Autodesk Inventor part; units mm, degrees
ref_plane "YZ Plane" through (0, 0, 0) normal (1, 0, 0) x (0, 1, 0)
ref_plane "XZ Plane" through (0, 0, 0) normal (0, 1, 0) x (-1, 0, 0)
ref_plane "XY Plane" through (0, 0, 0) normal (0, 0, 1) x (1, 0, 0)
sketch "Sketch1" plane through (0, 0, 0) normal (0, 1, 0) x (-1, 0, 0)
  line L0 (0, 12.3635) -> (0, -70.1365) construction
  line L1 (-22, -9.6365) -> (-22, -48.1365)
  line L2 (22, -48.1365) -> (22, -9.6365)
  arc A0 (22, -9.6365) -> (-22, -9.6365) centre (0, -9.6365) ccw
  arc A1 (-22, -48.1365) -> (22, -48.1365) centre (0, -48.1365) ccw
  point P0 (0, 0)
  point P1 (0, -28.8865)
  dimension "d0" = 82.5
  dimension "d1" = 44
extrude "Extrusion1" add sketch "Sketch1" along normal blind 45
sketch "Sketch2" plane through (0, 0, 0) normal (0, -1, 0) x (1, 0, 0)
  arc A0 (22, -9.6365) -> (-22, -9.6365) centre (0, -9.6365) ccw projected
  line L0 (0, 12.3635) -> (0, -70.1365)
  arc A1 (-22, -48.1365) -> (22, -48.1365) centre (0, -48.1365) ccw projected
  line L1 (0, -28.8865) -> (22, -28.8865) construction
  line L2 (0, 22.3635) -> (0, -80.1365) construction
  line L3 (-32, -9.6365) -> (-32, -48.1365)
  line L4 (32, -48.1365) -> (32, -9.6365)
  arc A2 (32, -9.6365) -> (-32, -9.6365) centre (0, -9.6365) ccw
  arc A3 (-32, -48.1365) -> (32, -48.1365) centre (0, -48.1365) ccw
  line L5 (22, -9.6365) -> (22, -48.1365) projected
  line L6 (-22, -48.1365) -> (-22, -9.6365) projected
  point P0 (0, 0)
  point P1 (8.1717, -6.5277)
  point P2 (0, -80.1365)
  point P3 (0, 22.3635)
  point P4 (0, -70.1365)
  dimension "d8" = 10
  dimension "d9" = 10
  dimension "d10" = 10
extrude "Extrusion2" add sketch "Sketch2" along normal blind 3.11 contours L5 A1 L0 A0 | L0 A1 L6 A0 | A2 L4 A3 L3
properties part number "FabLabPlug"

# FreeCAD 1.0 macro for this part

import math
import FreeCAD as App
import Part
import Sketcher

V = App.Vector
Q = App.Units.Quantity

doc = App.newDocument("Part")
body = doc.addObject("PartDesign::Body", "Body")

# Sketch on XZ plane
sketch1 = body.newObject("Sketcher::SketchObject", "Sketch")
sketch1.AttachmentSupport = (doc.getObject("XZ_Plane"), [""])
sketch1.MapMode = "FlatFace"
sketch1.addGeometry(Part.ArcOfCircle(Part.Circle(V(0, -10, 0), V(0, 0, 1), 22), math.radians(0), math.radians(180)), False)
sketch1.addGeometry(Part.LineSegment(V(22, -10, 0), V(22, -48, 0)), False)
sketch1.addGeometry(Part.ArcOfCircle(Part.Circle(V(0, -48, 0), V(0, 0, 1), 22), math.radians(180), math.radians(360)), False)
sketch1.addGeometry(Part.LineSegment(V(-22, -48, 0), V(-22, -10, 0)), False)
sketch1.addConstraint(Sketcher.Constraint("Tangent", 0, 1, 1, 1))
sketch1.addConstraint(Sketcher.Constraint("Tangent", 1, 2, 2, 2))
sketch1.addConstraint(Sketcher.Constraint("Tangent", 2, 1, 3, 1))
sketch1.addConstraint(Sketcher.Constraint("Tangent", 3, 2, 0, 2))
sketch1.addConstraint(Sketcher.Constraint("Vertical", 1))
sketch1.addConstraint(Sketcher.Constraint("Vertical", 3))
sketch1.addConstraint(Sketcher.Constraint("PointOnObject", 0, 3, -2))
sketch1.addConstraint(Sketcher.Constraint("Radius", 0, Q("22 mm")))
sketch1.addConstraint(Sketcher.Constraint("DistanceY", 1, 2, 1, 1, Q("38.5 mm")))
sketch1.addConstraint(Sketcher.Constraint("DistanceY", 0, 3, -1, 1, Q("9.6365 mm")))
pad1 = body.newObject("PartDesign::Pad", "Pad")
pad1.Profile = sketch1
pad1.Length = 45
pad1.Reversed = True

# Sketch on XZ plane
sketch2 = body.newObject("Sketcher::SketchObject", "Sketch001")
sketch2.AttachmentSupport = (doc.getObject("XZ_Plane"), [""])
sketch2.MapMode = "FlatFace"
sketch2.addGeometry(Part.ArcOfCircle(Part.Circle(V(0, -10, 0), V(0, 0, 1), 32), math.radians(0), math.radians(180)), False)
sketch2.addGeometry(Part.LineSegment(V(-32, -10, 0), V(-32, -48, 0)), False)
sketch2.addGeometry(Part.ArcOfCircle(Part.Circle(V(0, -48, 0), V(0, 0, 1), 32), math.radians(180), math.radians(360)), False)
sketch2.addGeometry(Part.LineSegment(V(32, -48, 0), V(32, -10, 0)), False)
sketch2.addConstraint(Sketcher.Constraint("Tangent", 0, 2, 1, 1))
sketch2.addConstraint(Sketcher.Constraint("Tangent", 1, 2, 2, 1))
sketch2.addConstraint(Sketcher.Constraint("Tangent", 2, 2, 3, 1))
sketch2.addConstraint(Sketcher.Constraint("Tangent", 3, 2, 0, 1))
sketch2.addConstraint(Sketcher.Constraint("Vertical", 1))
sketch2.addConstraint(Sketcher.Constraint("Vertical", 3))
sketch2.addConstraint(Sketcher.Constraint("PointOnObject", 0, 3, -2))
sketch2.addConstraint(Sketcher.Constraint("Radius", 0, Q("32 mm")))
sketch2.addConstraint(Sketcher.Constraint("DistanceY", 1, 2, 1, 1, Q("38.5 mm")))
sketch2.addConstraint(Sketcher.Constraint("DistanceY", 0, 3, -1, 1, Q("9.6365 mm")))
pad2 = body.newObject("PartDesign::Pad", "Pad001")
pad2.Profile = sketch2
pad2.Length = 3.11

doc.recompute()
